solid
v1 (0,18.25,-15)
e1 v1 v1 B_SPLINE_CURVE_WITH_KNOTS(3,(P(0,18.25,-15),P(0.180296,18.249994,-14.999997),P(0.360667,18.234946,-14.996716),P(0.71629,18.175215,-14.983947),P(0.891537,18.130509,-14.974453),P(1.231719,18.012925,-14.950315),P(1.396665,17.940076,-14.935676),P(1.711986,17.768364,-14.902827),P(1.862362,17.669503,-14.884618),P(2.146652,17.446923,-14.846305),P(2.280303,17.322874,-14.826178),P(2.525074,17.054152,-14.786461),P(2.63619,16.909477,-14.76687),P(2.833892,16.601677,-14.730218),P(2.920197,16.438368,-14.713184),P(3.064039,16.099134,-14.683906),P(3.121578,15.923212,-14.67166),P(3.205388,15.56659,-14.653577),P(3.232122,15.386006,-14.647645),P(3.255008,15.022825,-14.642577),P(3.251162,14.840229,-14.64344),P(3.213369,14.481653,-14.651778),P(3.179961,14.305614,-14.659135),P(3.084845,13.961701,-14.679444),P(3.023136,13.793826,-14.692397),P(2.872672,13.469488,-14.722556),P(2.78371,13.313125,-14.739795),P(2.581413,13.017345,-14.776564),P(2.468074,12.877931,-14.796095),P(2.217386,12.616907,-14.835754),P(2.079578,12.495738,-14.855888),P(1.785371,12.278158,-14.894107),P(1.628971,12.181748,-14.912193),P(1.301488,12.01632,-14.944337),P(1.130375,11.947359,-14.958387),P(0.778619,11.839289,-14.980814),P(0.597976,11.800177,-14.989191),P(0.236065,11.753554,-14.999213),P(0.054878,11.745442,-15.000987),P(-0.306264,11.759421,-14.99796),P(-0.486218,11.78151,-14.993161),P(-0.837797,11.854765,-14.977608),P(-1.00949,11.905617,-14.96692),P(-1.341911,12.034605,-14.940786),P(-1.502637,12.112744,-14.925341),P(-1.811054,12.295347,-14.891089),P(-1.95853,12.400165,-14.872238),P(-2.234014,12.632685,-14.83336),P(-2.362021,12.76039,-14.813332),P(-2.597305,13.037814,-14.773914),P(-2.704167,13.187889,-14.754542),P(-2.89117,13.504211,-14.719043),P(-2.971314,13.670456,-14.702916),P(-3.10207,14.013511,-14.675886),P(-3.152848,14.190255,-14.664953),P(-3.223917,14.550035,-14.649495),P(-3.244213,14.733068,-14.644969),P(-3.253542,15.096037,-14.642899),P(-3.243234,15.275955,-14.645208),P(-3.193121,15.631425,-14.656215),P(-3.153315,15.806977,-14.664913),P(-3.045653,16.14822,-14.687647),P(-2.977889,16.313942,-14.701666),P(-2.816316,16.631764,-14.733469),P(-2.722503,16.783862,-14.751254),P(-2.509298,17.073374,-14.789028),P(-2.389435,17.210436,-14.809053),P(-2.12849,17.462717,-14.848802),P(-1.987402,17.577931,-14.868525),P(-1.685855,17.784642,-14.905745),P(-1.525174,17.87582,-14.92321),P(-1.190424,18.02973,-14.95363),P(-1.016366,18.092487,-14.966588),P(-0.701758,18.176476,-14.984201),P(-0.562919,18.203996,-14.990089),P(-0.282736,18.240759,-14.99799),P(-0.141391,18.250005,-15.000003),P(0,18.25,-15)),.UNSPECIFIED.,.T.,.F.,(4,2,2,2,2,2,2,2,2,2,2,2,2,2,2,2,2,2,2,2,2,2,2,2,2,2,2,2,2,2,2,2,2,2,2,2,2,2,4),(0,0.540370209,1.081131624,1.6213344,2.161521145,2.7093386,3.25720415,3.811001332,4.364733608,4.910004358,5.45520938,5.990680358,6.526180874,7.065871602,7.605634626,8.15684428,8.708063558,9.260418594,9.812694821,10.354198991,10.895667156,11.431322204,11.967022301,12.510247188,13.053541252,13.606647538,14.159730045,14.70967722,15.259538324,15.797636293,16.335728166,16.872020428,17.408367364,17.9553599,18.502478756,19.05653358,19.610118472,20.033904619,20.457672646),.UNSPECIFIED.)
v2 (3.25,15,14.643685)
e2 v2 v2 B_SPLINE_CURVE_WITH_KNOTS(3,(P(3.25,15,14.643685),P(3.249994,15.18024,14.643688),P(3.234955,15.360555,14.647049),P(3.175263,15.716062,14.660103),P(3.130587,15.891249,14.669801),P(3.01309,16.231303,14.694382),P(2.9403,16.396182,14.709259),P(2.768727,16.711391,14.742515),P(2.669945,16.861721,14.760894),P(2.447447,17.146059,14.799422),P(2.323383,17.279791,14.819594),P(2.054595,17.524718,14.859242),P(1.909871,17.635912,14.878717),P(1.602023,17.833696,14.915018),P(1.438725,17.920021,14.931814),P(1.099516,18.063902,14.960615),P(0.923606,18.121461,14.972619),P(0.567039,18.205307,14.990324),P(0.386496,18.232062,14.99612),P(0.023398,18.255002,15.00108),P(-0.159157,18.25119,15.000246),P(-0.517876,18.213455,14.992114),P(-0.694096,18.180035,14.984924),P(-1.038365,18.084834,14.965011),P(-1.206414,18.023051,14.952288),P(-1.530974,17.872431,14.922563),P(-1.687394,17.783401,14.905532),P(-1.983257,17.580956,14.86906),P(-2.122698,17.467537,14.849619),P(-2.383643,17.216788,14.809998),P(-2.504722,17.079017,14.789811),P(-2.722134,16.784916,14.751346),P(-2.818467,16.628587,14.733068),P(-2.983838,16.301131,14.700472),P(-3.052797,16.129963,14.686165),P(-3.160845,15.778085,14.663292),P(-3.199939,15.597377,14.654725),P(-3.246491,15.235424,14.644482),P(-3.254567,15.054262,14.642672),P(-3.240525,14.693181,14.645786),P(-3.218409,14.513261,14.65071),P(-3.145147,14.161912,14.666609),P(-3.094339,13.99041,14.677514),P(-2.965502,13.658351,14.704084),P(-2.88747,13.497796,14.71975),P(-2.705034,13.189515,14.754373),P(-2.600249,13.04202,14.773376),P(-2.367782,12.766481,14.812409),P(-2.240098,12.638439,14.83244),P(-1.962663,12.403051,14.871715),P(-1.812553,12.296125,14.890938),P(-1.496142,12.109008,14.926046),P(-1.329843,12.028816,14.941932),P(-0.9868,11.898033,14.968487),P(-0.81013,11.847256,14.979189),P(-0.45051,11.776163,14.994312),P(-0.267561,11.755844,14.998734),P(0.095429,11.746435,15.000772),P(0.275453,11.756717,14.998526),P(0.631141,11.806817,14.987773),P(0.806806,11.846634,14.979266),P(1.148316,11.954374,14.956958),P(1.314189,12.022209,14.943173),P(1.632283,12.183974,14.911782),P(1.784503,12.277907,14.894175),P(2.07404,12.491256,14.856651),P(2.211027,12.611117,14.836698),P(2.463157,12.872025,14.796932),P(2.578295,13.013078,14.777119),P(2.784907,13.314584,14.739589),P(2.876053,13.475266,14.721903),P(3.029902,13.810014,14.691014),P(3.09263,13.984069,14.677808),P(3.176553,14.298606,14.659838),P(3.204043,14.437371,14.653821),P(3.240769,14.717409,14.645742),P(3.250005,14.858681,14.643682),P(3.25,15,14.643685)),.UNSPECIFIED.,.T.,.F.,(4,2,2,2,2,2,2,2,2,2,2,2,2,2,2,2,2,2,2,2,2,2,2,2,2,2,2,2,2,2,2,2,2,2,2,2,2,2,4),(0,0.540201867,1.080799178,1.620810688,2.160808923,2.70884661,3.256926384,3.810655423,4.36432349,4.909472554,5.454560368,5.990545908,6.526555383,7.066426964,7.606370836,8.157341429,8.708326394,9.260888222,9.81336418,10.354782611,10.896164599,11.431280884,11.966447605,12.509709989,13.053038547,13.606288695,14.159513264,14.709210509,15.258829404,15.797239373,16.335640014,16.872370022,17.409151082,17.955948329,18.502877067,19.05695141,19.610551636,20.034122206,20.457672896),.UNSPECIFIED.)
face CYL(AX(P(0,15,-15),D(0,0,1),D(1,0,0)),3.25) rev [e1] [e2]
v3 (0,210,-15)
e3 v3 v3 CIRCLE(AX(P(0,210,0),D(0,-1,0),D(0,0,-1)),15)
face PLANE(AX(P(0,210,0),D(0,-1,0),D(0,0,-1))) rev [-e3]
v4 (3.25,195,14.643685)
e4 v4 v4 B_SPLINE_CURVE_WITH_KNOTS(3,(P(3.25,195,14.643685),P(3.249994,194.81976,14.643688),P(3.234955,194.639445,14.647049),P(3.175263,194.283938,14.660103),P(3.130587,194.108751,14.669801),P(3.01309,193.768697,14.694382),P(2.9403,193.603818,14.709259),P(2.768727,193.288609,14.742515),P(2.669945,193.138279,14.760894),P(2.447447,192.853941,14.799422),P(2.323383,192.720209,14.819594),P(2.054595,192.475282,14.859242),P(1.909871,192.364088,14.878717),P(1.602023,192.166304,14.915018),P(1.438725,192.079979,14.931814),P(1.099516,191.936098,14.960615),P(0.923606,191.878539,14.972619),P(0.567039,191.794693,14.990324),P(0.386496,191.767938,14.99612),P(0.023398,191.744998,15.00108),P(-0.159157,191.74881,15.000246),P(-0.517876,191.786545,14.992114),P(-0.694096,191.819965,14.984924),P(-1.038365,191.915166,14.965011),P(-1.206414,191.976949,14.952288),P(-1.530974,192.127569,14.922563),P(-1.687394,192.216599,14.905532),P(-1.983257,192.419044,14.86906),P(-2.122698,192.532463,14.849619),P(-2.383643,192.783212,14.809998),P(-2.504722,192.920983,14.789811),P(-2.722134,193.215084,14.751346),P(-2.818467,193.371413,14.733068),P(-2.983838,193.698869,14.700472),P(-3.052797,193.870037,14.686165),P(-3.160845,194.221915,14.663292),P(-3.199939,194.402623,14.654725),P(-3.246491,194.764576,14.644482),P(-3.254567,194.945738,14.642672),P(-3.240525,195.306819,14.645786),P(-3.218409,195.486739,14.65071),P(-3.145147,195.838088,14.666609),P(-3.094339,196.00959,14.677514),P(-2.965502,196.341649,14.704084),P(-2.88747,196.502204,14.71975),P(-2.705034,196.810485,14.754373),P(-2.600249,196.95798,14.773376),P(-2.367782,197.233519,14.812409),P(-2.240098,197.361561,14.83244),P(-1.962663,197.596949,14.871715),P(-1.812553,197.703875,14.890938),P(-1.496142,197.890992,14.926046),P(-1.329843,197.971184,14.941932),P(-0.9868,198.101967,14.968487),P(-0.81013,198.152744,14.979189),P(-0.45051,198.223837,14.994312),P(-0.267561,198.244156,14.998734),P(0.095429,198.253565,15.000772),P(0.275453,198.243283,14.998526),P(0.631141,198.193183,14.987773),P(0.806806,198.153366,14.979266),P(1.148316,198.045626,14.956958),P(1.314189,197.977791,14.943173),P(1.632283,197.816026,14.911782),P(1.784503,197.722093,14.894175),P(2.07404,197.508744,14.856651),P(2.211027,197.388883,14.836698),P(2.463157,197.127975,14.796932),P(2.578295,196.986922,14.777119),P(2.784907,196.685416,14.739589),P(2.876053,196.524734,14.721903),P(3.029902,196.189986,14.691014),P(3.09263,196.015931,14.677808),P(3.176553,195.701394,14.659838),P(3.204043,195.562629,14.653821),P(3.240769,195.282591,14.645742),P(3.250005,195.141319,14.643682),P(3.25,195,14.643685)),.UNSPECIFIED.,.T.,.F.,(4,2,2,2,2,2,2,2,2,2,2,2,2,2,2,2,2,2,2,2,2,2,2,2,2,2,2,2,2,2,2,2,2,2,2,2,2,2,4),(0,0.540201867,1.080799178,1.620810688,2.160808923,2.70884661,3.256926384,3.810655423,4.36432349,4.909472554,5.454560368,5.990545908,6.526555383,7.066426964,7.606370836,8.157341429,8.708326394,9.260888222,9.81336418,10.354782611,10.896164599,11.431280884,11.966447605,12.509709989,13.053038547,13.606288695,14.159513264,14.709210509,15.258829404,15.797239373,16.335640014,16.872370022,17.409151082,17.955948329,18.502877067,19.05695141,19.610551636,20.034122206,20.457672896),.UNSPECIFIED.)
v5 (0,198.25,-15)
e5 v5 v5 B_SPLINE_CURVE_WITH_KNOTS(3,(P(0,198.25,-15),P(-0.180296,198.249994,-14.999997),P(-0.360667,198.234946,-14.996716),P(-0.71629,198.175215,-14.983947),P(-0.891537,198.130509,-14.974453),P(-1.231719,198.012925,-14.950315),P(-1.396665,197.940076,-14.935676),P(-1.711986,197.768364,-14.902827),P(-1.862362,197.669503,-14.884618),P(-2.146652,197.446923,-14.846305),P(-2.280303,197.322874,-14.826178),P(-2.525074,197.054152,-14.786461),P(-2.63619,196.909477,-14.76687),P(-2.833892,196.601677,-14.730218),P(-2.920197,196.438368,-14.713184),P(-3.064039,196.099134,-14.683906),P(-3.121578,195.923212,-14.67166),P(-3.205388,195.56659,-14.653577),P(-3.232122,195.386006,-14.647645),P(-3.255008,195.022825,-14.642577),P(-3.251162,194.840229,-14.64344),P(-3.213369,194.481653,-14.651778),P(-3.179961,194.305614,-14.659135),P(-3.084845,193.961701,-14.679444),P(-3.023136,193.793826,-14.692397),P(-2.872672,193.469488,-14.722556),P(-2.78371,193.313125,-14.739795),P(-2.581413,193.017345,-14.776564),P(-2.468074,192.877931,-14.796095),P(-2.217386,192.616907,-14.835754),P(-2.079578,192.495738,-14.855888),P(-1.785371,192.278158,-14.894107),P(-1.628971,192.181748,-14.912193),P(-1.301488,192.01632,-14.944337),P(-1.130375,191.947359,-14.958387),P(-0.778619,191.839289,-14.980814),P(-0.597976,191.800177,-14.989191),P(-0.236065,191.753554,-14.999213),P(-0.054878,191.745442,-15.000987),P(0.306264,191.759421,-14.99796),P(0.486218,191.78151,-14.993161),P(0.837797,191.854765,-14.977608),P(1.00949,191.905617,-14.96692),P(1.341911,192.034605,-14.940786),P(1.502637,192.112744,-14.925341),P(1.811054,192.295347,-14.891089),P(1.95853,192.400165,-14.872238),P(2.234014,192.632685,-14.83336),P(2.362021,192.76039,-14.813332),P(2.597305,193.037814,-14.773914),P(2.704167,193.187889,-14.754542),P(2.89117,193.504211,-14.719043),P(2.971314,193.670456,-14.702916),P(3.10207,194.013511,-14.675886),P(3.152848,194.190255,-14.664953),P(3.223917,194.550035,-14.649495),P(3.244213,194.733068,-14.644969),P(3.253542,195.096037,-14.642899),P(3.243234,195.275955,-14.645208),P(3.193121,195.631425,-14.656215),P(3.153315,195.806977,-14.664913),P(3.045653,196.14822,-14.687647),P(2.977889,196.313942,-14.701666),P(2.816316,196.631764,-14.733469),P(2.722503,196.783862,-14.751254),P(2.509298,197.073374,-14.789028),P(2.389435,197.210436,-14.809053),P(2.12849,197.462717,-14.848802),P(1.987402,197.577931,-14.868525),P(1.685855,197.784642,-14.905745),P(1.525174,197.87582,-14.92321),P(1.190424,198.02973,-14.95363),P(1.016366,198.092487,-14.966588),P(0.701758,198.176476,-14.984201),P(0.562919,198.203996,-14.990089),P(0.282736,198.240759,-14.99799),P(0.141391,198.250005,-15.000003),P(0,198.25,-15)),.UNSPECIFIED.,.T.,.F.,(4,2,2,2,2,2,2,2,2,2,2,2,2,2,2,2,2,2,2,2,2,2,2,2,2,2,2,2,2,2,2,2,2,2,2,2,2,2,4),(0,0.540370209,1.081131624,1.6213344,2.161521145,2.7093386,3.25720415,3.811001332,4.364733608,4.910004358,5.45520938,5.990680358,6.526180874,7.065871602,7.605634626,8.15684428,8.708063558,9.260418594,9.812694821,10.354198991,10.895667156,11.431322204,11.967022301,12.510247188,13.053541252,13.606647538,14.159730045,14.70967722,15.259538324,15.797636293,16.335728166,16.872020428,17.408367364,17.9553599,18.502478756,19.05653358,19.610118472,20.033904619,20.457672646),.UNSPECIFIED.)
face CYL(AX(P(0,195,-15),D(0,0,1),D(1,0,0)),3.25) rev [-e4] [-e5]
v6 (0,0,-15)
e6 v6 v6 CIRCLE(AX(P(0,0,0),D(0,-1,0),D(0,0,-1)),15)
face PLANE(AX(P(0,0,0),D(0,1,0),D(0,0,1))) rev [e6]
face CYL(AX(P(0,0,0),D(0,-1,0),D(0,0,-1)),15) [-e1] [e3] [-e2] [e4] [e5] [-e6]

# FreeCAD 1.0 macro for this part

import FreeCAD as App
import Part
import Sketcher

V = App.Vector
Q = App.Units.Quantity


def add_polygon(sketch, points):
    """Adds a closed chain of lines whose ends are joined by coincident constraints."""
    first, n = sketch.GeometryCount, len(points)
    for a, b in zip(points, points[1:] + points[:1]):
        sketch.addGeometry(Part.LineSegment(App.Vector(*a, 0), App.Vector(*b, 0)), False)
    for i in range(n):
        sketch.addConstraint(Sketcher.Constraint("Coincident", first + i, 2, first + (i + 1) % n, 1))

doc = App.newDocument("Part")
body = doc.addObject("PartDesign::Body", "Body")

# Sketch on XY plane
sketch1 = body.newObject("Sketcher::SketchObject", "Sketch")
sketch1.AttachmentSupport = (doc.getObject("XY_Plane"), [""])
sketch1.MapMode = "FlatFace"
add_polygon(sketch1, [(-15, 210), (-15, 0), (0, 0), (0, 210)])  # lines 0-3
sketch1.addConstraint(Sketcher.Constraint("Vertical", 0))
sketch1.addConstraint(Sketcher.Constraint("Horizontal", 1))
sketch1.addConstraint(Sketcher.Constraint("Vertical", 2))
sketch1.addConstraint(Sketcher.Constraint("Horizontal", 3))
sketch1.addConstraint(Sketcher.Constraint("Coincident", 1, 2, -1, 1))
sketch1.addConstraint(Sketcher.Constraint("DistanceX", 1, 1, 1, 2, Q("15 mm")))
sketch1.addConstraint(Sketcher.Constraint("DistanceY", 0, 2, 0, 1, Q("210 mm")))
revolution = body.newObject("PartDesign::Revolution", "Revolution")
revolution.Profile = sketch1
revolution.ReferenceAxis = (sketch1, ["V_Axis"])
revolution.Angle = 360

# Sketch on XY plane
sketch2 = body.newObject("Sketcher::SketchObject", "Sketch001")
sketch2.AttachmentSupport = (doc.getObject("XY_Plane"), [""])
sketch2.MapMode = "FlatFace"
sketch2.addGeometry(Part.Circle(V(0, 195, 0), V(0, 0, 1), 3.25), False)
sketch2.addConstraint(Sketcher.Constraint("PointOnObject", 0, 3, -2))
sketch2.addConstraint(Sketcher.Constraint("Diameter", 0, Q("6.5 mm")))
sketch2.addConstraint(Sketcher.Constraint("DistanceY", -1, 1, 0, 3, Q("195 mm")))
pocket1 = body.newObject("PartDesign::Pocket", "Pocket")
pocket1.Profile = sketch2
pocket1.Length = 424.137418
pocket1.Midplane = True
doc.recompute()

datumplane = body.newObject("PartDesign::Plane", "DatumPlane")
datumplane.AttachmentSupport = (doc.getObject("XZ_Plane"), [""])
datumplane.MapMode = "FlatFace"
datumplane.AttachmentOffset = App.Placement(V(0, 0, -105), App.Rotation())
mirrored = body.newObject("PartDesign::Mirrored", "Mirrored")
mirrored.Originals = [pocket1]
mirrored.MirrorPlane = (datumplane, [""])
body.Tip = mirrored

doc.recompute()
